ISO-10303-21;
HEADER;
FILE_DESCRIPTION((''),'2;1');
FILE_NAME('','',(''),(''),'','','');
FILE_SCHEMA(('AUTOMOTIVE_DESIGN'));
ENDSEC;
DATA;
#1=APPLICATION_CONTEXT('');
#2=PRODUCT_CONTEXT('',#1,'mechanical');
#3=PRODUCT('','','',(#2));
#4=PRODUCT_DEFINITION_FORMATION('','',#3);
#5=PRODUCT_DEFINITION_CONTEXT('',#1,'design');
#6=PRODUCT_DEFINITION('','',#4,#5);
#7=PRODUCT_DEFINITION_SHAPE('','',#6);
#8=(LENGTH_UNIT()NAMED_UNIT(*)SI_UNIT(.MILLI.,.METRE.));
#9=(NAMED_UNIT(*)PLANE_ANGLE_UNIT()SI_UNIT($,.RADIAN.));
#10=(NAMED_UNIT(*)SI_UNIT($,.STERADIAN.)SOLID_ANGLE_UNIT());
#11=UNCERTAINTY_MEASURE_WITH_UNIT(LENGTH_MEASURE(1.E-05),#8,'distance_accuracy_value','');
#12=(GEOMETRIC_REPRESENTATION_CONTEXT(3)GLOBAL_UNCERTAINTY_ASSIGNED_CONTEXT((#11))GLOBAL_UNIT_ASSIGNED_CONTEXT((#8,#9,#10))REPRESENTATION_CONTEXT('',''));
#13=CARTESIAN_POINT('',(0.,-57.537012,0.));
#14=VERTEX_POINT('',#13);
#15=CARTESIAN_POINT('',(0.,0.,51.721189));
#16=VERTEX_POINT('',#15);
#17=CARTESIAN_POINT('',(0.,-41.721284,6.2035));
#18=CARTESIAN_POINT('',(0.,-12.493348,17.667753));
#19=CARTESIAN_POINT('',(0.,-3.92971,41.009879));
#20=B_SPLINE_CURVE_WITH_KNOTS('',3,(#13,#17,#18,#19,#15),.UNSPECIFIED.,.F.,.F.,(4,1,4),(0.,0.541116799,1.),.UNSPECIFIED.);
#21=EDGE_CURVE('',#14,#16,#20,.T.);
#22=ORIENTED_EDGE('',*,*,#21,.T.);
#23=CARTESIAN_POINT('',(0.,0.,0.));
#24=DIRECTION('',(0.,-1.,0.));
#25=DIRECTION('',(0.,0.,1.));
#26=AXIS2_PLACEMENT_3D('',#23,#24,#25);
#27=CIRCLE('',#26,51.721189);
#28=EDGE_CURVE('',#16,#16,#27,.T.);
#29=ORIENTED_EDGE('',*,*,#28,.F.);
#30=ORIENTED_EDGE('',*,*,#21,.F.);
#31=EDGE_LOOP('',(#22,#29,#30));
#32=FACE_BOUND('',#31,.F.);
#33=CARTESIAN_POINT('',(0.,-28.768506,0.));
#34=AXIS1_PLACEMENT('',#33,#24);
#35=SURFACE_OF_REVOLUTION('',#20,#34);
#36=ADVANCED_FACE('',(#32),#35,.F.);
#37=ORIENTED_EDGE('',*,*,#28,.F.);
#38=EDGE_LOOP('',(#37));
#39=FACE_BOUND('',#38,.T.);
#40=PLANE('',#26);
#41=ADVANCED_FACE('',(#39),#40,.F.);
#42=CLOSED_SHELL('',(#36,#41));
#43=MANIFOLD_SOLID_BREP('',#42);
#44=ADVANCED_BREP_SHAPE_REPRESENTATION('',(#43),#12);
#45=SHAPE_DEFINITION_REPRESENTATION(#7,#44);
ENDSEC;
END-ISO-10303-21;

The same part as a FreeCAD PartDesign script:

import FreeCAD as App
import Part
import Sketcher

doc = App.newDocument("Part")
body = doc.addObject("PartDesign::Body", "Body")

# Sketch on YZ plane
sketch1 = body.newObject("Sketcher::SketchObject", "Sketch")
sketch1.AttachmentSupport = (doc.getObject("YZ_Plane"), [""])
sketch1.MapMode = "FlatFace"
sketch1.addGeometry(Part.LineSegment(App.Vector(-57.537012, 0, 0), App.Vector(0, 0, 0)), False)
sketch1.addGeometry(Part.LineSegment(App.Vector(0, 0, 0), App.Vector(0, 51.721189, 0)), False)
sketch1.addGeometry(Part.BSplineCurve([App.Vector(-57.537012, 0, 0), App.Vector(-41.721284, 6.2035, 0), App.Vector(-12.493348, 17.667753, 0), App.Vector(-3.92971, 41.009879, 0), App.Vector(0, 51.721189, 0)], [4, 1, 4], [0, 0.541116799, 1], False, 3, [1, 1, 1, 1, 1], False), False)
sketch1.addConstraint(Sketcher.Constraint("Block", 2))
sketch1.addConstraint(Sketcher.Constraint("Coincident", 0, 2, 1, 1))
sketch1.addConstraint(Sketcher.Constraint("Coincident", 1, 2, 2, 2))
sketch1.addConstraint(Sketcher.Constraint("Coincident", 2, 1, 0, 1))
sketch1.addConstraint(Sketcher.Constraint("Horizontal", 0))
sketch1.addConstraint(Sketcher.Constraint("Vertical", 1))
revolution = body.newObject("PartDesign::Revolution", "Revolution")
revolution.Profile = sketch1
revolution.ReferenceAxis = (sketch1, ["H_Axis"])
revolution.Angle = 360

doc.recompute()
